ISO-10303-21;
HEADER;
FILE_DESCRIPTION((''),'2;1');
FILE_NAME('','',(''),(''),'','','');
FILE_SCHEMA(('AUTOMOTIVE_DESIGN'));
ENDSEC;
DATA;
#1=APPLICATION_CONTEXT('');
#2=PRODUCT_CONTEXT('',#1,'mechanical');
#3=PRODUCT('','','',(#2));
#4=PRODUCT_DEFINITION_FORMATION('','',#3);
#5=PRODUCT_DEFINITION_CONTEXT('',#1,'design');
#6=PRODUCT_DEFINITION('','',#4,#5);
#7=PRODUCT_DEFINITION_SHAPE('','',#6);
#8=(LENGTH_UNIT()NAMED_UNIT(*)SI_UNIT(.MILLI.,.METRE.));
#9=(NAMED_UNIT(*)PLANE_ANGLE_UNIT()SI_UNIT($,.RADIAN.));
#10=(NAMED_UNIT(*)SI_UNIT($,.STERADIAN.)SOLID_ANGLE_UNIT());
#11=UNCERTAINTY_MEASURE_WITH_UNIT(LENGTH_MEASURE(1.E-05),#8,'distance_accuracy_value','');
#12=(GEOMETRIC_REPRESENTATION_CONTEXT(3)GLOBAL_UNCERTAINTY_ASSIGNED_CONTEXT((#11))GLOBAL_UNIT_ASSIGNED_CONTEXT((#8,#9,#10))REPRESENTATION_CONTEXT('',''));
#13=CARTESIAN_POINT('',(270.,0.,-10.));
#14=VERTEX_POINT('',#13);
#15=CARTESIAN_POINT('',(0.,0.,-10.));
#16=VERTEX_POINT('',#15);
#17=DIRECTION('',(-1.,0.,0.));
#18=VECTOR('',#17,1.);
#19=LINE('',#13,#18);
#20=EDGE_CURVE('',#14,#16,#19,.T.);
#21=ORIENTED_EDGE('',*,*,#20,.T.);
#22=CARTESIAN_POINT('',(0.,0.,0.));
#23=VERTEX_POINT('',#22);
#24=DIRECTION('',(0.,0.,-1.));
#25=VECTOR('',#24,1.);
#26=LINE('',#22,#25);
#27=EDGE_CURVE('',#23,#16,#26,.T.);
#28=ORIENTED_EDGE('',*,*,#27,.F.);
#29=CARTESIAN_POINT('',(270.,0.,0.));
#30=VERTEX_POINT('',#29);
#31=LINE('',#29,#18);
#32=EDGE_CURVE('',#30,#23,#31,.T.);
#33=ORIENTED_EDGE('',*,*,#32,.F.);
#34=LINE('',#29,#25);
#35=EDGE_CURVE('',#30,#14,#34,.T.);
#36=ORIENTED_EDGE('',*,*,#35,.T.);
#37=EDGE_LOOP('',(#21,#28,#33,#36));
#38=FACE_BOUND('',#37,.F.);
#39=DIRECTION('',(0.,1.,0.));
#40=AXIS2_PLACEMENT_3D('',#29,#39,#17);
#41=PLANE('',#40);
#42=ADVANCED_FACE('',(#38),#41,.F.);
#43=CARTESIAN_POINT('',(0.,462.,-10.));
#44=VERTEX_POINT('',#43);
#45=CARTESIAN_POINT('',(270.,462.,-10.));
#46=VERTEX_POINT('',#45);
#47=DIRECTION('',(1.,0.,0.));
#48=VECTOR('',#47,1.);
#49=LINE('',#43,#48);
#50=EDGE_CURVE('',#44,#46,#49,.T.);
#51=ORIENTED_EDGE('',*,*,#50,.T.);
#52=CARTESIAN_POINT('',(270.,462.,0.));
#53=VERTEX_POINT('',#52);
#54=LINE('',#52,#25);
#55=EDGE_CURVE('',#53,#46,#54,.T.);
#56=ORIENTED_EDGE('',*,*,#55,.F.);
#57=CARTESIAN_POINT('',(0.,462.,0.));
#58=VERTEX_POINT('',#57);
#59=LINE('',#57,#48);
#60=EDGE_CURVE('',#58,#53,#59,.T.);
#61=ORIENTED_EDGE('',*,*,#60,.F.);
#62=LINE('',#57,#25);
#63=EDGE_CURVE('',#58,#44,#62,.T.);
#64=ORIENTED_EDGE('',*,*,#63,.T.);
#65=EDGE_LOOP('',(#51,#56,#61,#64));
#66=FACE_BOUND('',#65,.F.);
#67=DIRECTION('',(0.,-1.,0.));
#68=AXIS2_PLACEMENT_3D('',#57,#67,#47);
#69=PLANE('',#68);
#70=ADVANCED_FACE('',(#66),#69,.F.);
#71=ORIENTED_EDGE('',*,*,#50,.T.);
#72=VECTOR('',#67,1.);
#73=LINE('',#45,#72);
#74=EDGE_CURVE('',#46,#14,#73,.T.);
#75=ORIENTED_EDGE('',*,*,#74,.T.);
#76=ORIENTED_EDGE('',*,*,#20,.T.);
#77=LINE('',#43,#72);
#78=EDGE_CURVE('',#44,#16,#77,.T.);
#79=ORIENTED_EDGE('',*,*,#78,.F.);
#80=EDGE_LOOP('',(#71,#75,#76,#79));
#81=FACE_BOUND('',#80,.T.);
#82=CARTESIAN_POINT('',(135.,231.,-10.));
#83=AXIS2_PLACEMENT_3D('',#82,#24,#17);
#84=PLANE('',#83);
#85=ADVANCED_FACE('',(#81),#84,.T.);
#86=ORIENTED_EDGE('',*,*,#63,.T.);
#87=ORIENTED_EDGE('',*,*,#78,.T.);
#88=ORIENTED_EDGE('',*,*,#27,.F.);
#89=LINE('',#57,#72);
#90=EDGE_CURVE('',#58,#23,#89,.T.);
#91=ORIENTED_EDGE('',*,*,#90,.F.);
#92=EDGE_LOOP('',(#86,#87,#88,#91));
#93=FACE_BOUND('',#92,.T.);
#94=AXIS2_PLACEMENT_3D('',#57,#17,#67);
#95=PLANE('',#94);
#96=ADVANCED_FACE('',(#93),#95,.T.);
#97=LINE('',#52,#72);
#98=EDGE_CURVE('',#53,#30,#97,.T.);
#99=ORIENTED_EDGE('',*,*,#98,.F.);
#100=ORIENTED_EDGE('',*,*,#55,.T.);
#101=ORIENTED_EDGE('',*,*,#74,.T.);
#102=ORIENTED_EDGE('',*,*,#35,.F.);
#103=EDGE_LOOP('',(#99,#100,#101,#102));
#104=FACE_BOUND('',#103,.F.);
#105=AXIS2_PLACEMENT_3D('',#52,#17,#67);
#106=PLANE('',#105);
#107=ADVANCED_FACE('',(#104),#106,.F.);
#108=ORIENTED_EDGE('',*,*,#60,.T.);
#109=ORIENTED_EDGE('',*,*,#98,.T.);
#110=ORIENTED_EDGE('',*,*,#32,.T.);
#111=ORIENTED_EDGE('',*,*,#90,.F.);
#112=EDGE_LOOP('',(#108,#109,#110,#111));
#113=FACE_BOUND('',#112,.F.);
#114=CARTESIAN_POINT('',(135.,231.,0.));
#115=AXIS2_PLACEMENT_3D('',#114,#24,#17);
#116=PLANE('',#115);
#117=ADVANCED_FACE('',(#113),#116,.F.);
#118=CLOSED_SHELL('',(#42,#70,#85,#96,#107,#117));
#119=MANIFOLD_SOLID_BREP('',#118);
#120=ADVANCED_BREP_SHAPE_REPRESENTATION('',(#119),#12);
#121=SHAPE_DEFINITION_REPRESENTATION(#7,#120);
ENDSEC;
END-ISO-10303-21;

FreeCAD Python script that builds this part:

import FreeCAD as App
import Part
import Sketcher

V = App.Vector
Q = App.Units.Quantity

doc = App.newDocument("Part")
body = doc.addObject("PartDesign::Body", "Body")

# Sketch on XY plane
sketch1 = body.newObject("Sketcher::SketchObject", "Sketch")
sketch1.AttachmentSupport = (doc.getObject("XY_Plane"), [""])
sketch1.MapMode = "FlatFace"
sketch1.addGeometry([
    Part.LineSegment(V(0, 462, 0), V(0, 0, 0)),
    Part.LineSegment(V(0, 0, 0), V(270, 0, 0)),
    Part.LineSegment(V(270, 0, 0), V(270, 462, 0)),
    Part.LineSegment(V(270, 462, 0), V(0, 462, 0)),
], False)
sketch1.addConstraint([
    Sketcher.Constraint("Coincident", 0, 2, 1, 1),
    Sketcher.Constraint("Coincident", 1, 2, 2, 1),
    Sketcher.Constraint("Coincident", 2, 2, 3, 1),
    Sketcher.Constraint("Coincident", 3, 2, 0, 1),
    Sketcher.Constraint("Vertical", 0),
    Sketcher.Constraint("Horizontal", 1),
    Sketcher.Constraint("Vertical", 2),
    Sketcher.Constraint("Horizontal", 3),
    Sketcher.Constraint("Coincident", 0, 2, -1, 1),
    Sketcher.Constraint("DistanceX", 1, 1, 1, 2, Q("270 mm")),
    Sketcher.Constraint("DistanceY", 0, 2, 0, 1, Q("462 mm")),
])
pad1 = body.newObject("PartDesign::Pad", "Pad")
pad1.Profile = sketch1
pad1.Length = 10
pad1.Reversed = True

doc.recompute()
